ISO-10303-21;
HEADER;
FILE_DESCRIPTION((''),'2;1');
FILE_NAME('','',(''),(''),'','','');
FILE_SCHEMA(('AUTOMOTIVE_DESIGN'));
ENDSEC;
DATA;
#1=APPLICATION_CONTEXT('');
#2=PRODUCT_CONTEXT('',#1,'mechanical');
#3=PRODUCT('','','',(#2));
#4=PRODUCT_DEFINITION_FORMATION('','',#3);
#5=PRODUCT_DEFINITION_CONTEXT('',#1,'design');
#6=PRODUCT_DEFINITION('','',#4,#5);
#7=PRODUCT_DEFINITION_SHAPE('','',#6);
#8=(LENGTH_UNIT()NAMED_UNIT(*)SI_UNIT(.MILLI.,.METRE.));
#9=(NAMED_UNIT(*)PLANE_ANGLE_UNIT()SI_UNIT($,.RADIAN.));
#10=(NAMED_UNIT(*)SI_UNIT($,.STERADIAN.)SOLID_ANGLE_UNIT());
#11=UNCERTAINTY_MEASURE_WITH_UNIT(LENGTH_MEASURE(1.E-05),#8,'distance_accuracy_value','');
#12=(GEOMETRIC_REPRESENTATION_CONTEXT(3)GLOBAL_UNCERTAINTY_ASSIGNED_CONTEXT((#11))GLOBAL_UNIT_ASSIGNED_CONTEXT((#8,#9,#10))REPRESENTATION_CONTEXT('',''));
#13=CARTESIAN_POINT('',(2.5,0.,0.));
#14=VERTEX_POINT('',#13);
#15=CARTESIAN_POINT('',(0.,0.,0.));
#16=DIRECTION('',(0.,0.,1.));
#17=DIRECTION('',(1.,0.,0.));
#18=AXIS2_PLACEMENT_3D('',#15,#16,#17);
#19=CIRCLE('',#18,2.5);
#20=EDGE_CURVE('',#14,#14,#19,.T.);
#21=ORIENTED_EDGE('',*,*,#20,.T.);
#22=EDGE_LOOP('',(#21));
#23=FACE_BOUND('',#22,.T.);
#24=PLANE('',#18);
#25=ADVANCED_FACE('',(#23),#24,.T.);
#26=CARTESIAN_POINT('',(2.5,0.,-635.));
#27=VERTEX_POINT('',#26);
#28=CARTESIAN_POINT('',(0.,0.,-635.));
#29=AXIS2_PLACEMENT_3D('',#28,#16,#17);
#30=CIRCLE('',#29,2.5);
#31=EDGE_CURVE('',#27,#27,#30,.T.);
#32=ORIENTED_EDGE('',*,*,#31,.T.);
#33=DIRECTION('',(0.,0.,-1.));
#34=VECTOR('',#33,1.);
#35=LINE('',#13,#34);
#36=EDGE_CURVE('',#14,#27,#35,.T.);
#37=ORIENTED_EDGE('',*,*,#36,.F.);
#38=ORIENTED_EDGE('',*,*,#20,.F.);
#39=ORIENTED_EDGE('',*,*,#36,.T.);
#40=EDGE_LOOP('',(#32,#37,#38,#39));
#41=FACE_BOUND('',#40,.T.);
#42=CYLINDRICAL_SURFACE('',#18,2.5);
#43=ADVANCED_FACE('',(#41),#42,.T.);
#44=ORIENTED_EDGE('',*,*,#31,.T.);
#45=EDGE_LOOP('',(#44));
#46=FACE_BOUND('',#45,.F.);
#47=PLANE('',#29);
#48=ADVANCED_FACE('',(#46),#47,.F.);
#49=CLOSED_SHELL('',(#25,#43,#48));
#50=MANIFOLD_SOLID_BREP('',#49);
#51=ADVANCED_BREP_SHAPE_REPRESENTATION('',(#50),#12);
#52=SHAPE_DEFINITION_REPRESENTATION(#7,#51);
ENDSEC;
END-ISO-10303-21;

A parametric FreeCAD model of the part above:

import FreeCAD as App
import Part
import Sketcher
from FreeCAD import Vector

doc = App.newDocument("Part")
body = doc.addObject("PartDesign::Body", "Body")

# Sketch on XY plane
sketch1 = body.newObject("Sketcher::SketchObject", "Sketch")
sketch1.AttachmentSupport = (doc.getObject("XY_Plane"), [""])
sketch1.MapMode = "FlatFace"
sketch1.addGeometry(Part.Circle(Vector(0, 0, 0), Vector(0, 0, 1), 2.5), False)
sketch1.addConstraint(Sketcher.Constraint("Coincident", 0, 3, -1, 1))
sketch1.addConstraint(Sketcher.Constraint("Diameter", 0, 5.0))
pad1 = body.newObject("PartDesign::Pad", "Pad")
pad1.Profile = sketch1
pad1.Length = 635
pad1.Reversed = True

doc.recompute()
